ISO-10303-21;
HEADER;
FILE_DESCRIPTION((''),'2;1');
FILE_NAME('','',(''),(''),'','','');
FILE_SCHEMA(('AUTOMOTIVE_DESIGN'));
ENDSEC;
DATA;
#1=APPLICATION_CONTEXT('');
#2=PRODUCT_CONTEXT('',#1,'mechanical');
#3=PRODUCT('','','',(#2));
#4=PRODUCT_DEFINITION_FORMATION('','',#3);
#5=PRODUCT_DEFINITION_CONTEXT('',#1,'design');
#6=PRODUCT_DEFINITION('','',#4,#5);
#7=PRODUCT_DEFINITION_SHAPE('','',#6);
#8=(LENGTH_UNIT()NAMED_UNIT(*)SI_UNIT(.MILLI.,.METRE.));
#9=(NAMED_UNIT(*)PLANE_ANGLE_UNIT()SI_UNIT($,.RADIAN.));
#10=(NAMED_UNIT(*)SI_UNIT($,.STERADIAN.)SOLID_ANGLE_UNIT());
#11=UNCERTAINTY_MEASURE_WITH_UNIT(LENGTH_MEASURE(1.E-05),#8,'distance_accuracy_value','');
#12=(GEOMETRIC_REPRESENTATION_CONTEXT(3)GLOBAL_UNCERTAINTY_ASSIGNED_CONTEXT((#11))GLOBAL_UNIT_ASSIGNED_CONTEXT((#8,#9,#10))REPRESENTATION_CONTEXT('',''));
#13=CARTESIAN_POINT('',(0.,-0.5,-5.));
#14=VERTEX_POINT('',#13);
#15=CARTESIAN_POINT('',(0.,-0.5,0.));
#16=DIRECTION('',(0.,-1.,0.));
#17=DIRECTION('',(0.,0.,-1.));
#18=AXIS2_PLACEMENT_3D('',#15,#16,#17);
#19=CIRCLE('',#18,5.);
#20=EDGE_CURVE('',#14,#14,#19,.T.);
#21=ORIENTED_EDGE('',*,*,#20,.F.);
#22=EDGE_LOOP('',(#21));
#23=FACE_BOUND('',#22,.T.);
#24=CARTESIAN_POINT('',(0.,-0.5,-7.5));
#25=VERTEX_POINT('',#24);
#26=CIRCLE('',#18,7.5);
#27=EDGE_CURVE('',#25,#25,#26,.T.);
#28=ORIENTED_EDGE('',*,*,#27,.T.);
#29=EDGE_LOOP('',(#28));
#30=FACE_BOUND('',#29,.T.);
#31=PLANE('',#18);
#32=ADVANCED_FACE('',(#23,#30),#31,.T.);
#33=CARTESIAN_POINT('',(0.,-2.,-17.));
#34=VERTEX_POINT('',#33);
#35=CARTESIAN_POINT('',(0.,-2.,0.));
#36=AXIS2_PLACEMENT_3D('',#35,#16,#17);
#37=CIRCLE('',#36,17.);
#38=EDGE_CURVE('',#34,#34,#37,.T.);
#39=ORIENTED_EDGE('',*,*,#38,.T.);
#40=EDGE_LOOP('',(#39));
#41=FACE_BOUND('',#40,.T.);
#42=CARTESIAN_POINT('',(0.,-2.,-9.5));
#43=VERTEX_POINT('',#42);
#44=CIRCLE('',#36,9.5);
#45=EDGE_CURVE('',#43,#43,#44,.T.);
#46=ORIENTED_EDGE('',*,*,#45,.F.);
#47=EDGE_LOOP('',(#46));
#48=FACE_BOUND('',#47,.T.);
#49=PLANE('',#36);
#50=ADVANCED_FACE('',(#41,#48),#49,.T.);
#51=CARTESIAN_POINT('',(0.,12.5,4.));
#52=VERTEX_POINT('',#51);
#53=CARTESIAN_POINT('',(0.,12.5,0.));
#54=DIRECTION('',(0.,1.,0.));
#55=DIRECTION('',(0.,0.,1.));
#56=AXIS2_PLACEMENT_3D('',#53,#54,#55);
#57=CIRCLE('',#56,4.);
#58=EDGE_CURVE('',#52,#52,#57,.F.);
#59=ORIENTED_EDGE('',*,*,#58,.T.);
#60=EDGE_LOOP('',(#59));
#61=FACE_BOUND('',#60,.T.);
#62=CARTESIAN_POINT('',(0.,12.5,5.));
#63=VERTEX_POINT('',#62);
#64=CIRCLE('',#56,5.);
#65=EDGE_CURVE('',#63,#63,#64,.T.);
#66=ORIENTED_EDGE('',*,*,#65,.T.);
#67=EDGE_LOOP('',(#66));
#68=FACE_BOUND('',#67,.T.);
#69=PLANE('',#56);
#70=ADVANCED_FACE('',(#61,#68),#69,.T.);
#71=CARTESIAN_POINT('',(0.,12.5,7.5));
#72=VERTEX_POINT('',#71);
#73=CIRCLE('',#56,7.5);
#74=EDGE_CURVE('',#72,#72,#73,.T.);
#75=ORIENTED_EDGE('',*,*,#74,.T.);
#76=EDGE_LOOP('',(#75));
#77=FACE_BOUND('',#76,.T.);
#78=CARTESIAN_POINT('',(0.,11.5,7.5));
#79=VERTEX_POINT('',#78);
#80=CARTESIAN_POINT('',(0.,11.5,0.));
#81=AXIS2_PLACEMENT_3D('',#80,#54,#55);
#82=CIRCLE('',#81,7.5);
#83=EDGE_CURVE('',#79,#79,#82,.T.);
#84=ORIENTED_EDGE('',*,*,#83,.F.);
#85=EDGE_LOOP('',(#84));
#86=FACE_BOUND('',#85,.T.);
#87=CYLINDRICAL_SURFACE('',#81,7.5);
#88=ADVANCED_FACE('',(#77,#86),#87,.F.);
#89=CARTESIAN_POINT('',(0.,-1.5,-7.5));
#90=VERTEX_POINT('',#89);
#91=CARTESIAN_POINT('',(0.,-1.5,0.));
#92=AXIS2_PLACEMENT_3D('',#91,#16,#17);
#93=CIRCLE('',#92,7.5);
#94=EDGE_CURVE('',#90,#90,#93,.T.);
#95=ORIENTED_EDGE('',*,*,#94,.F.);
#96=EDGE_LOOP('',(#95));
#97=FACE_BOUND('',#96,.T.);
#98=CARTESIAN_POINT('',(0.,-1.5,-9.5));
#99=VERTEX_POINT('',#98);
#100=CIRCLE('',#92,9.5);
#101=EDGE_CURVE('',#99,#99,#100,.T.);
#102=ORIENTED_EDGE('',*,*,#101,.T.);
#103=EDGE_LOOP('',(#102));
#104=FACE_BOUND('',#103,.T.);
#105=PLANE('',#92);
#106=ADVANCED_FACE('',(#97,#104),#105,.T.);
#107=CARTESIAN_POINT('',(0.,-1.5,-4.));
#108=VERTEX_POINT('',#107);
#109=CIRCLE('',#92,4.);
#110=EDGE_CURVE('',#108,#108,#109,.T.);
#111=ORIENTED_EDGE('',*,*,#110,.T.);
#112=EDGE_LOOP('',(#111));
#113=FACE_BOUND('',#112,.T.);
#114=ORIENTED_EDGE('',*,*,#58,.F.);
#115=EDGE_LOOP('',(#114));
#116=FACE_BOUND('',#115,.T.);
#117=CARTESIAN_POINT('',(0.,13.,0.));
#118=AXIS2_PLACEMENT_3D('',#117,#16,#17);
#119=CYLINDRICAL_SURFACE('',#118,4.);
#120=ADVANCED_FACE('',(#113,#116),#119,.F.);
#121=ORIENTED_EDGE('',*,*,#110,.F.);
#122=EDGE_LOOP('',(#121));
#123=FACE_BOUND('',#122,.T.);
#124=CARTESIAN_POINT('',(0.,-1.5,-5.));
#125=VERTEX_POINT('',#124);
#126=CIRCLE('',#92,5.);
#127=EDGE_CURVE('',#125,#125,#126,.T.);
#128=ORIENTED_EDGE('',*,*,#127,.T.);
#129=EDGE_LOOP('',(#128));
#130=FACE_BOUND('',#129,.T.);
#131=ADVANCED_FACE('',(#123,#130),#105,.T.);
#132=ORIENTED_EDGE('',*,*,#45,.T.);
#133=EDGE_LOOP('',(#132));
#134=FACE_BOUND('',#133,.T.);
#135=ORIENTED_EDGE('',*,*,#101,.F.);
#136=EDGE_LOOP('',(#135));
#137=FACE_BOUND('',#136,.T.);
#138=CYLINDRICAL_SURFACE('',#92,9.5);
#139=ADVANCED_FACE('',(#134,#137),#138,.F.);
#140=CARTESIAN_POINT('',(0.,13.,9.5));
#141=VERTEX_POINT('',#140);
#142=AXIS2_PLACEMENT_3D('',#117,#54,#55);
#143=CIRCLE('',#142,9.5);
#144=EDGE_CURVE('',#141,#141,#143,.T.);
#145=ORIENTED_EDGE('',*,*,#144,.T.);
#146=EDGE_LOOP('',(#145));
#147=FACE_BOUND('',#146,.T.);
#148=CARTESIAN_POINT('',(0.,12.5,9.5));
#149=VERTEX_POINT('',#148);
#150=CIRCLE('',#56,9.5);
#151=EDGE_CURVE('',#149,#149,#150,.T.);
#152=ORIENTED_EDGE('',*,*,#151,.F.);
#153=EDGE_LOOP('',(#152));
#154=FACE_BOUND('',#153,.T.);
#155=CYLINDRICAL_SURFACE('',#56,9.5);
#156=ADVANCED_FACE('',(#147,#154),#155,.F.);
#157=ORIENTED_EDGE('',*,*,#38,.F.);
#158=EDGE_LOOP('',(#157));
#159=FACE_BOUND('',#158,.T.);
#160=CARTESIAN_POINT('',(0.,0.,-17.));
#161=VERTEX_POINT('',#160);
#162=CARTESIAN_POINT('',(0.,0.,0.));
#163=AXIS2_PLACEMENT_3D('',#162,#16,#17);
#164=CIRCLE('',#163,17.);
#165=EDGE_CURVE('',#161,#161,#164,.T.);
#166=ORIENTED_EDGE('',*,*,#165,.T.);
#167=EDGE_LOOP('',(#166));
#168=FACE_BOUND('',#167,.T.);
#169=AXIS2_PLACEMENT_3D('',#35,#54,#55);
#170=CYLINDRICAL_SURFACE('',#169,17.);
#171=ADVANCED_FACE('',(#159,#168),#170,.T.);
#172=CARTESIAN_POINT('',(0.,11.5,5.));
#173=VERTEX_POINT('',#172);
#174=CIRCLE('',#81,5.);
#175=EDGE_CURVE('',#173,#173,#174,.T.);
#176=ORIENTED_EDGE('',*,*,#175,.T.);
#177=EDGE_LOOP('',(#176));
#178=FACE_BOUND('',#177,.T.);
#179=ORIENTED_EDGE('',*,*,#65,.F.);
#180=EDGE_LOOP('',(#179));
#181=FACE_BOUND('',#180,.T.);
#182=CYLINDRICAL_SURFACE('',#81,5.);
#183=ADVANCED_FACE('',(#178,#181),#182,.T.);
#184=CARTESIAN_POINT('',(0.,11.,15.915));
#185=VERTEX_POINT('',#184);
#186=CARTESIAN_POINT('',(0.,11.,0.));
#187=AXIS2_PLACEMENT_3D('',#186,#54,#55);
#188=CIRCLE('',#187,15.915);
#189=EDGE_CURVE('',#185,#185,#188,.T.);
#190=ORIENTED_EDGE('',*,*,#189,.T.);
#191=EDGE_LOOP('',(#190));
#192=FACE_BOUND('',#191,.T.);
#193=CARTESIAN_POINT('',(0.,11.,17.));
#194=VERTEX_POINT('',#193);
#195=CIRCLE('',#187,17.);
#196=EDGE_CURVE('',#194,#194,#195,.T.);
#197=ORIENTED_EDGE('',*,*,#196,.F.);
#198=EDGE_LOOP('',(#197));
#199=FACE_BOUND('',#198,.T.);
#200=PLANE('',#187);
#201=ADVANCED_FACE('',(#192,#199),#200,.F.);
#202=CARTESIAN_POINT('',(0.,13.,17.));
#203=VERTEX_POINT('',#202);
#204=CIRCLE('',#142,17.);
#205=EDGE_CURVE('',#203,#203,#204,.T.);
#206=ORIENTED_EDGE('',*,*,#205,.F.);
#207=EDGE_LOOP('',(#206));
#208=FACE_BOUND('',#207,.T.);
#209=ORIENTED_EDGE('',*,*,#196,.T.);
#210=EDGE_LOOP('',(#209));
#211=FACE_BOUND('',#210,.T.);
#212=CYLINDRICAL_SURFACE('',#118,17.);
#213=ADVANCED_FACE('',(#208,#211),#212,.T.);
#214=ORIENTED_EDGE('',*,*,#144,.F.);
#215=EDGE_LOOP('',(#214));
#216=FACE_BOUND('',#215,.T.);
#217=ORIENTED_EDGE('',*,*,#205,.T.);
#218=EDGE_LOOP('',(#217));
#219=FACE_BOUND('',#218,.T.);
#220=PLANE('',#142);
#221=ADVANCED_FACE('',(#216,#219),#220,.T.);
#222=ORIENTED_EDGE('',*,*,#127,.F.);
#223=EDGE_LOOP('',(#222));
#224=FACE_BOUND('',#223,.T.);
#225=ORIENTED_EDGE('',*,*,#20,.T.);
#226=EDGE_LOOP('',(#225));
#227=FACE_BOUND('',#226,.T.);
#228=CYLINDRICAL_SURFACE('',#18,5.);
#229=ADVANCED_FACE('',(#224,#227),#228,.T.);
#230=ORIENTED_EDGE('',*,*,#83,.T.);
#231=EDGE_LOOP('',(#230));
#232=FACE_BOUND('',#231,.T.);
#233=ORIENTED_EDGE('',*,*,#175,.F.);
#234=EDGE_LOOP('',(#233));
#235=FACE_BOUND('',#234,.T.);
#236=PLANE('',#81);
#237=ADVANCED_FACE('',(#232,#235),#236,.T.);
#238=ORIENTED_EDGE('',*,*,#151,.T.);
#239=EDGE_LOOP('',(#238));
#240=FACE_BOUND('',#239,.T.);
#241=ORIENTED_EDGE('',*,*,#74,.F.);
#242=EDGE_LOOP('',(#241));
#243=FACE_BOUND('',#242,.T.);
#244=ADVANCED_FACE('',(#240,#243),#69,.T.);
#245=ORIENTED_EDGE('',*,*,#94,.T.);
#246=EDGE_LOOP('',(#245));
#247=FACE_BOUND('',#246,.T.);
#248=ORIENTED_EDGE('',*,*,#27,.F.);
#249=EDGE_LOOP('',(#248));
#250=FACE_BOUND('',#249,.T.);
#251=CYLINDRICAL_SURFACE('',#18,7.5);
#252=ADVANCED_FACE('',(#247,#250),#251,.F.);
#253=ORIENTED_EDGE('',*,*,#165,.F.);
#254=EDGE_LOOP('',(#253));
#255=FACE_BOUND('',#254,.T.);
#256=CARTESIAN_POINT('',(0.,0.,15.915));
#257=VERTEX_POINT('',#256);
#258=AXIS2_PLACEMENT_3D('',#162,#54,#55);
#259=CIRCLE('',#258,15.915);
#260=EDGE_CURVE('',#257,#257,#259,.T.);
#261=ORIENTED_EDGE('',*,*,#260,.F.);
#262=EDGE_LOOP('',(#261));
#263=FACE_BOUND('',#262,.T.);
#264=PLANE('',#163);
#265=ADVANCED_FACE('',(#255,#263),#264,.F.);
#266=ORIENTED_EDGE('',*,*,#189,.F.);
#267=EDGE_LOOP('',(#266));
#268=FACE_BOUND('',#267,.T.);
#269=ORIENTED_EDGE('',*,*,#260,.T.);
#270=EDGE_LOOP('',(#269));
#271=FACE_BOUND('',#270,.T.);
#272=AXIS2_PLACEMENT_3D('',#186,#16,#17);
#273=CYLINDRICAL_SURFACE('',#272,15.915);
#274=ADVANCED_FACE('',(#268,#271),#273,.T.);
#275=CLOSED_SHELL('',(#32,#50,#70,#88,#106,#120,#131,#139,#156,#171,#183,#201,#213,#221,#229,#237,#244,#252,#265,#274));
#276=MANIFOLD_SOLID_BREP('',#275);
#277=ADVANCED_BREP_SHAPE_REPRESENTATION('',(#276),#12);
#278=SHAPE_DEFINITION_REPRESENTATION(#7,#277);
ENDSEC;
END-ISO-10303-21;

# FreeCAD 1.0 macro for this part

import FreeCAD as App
import Part
import Sketcher

V = App.Vector
Q = App.Units.Quantity

doc = App.newDocument("Part")
body = doc.addObject("PartDesign::Body", "Body")

# Sketch on XZ plane
sketch1 = body.newObject("Sketcher::SketchObject", "Sketch")
sketch1.AttachmentSupport = (doc.getObject("XZ_Plane"), [""])
sketch1.MapMode = "FlatFace"
sketch1.addGeometry(Part.Circle(V(0, 0, 0), V(0, 0, 1), 16), False)
sketch1.addConstraint(Sketcher.Constraint("Coincident", 0, 3, -1, 1))
sketch1.addConstraint(Sketcher.Constraint("Diameter", 0, Q("31.83 mm")))
pad1 = body.newObject("PartDesign::Pad", "Pad")
pad1.Profile = sketch1
pad1.Length = 11
pad1.Reversed = True

# Sketch on XZ plane
sketch2 = body.newObject("Sketcher::SketchObject", "Sketch001")
sketch2.AttachmentSupport = (doc.getObject("XZ_Plane"), [""])
sketch2.MapMode = "FlatFace"
sketch2.AttachmentOffset = App.Placement(V(0, 0, -11), App.Rotation())
sketch2.addGeometry(Part.Circle(V(0, 0, 0), V(0, 0, 1), 17), False)
sketch2.addConstraint(Sketcher.Constraint("Coincident", 0, 3, -1, 1))
sketch2.addConstraint(Sketcher.Constraint("Diameter", 0, Q("34 mm")))
pad2 = body.newObject("PartDesign::Pad", "Pad001")
pad2.Profile = sketch2
pad2.Length = 2
pad2.Reversed = True

# Sketch on XZ plane
sketch3 = body.newObject("Sketcher::SketchObject", "Sketch002")
sketch3.AttachmentSupport = (doc.getObject("XZ_Plane"), [""])
sketch3.MapMode = "FlatFace"
sketch3.AttachmentOffset = App.Placement(V(0, 0, 2), App.Rotation())
sketch3.addGeometry(Part.Circle(V(0, 0, 0), V(0, 0, 1), 17), False)
sketch3.addConstraint(Sketcher.Constraint("Coincident", 0, 3, -1, 1))
sketch3.addConstraint(Sketcher.Constraint("Diameter", 0, Q("34 mm")))
pad3 = body.newObject("PartDesign::Pad", "Pad002")
pad3.Profile = sketch3
pad3.Length = 2
pad3.Reversed = True

# Sketch on XZ plane
sketch4 = body.newObject("Sketcher::SketchObject", "Sketch003")
sketch4.AttachmentSupport = (doc.getObject("XZ_Plane"), [""])
sketch4.MapMode = "FlatFace"
sketch4.AttachmentOffset = App.Placement(V(0, 0, 2), App.Rotation())
sketch4.addGeometry(Part.Circle(V(0, 0, 0), V(0, 0, 1), 10), False)
sketch4.addGeometry(Part.Circle(V(0, 0, 0), V(0, 0, 1), 8), False)
sketch4.addConstraint(Sketcher.Constraint("Coincident", 0, 3, -1, 1))
sketch4.addConstraint(Sketcher.Constraint("Coincident", 1, 3, -1, 1))
sketch4.addConstraint(Sketcher.Constraint("Diameter", 0, Q("19 mm")))
sketch4.addConstraint(Sketcher.Constraint("Diameter", 1, Q("15 mm")))
pocket1 = body.newObject("PartDesign::Pocket", "Pocket")
pocket1.Profile = sketch4
pocket1.Length = 0.5

# Sketch on XZ plane
sketch5 = body.newObject("Sketcher::SketchObject", "Sketch004")
sketch5.AttachmentSupport = (doc.getObject("XZ_Plane"), [""])
sketch5.MapMode = "FlatFace"
sketch5.AttachmentOffset = App.Placement(V(0, 0, 2), App.Rotation())
sketch5.addGeometry(Part.Circle(V(0, 0, 0), V(0, 0, 1), 8), False)
sketch5.addGeometry(Part.Circle(V(0, 0, 0), V(0, 0, 1), 5), False)
sketch5.addConstraint(Sketcher.Constraint("Coincident", 0, 3, -1, 1))
sketch5.addConstraint(Sketcher.Constraint("Coincident", 1, 3, -1, 1))
sketch5.addConstraint(Sketcher.Constraint("Diameter", 0, Q("15 mm")))
sketch5.addConstraint(Sketcher.Constraint("Diameter", 1, Q("10 mm")))
pocket2 = body.newObject("PartDesign::Pocket", "Pocket001")
pocket2.Profile = sketch5
pocket2.Length = 1.5

# Sketch on XZ plane
sketch6 = body.newObject("Sketcher::SketchObject", "Sketch005")
sketch6.AttachmentSupport = (doc.getObject("XZ_Plane"), [""])
sketch6.MapMode = "FlatFace"
sketch6.AttachmentOffset = App.Placement(V(0, 0, 2), App.Rotation())
sketch6.addGeometry(Part.Circle(V(0, 0, 0), V(0, 0, 1), 5), False)
sketch6.addGeometry(Part.Circle(V(0, 0, 0), V(0, 0, 1), 4), False)
sketch6.addConstraint(Sketcher.Constraint("Coincident", 0, 3, -1, 1))
sketch6.addConstraint(Sketcher.Constraint("Coincident", 1, 3, -1, 1))
sketch6.addConstraint(Sketcher.Constraint("Diameter", 0, Q("10 mm")))
sketch6.addConstraint(Sketcher.Constraint("Diameter", 1, Q("8 mm")))
pocket3 = body.newObject("PartDesign::Pocket", "Pocket002")
pocket3.Profile = sketch6
pocket3.Length = 0.5

# Sketch on XZ plane
sketch7 = body.newObject("Sketcher::SketchObject", "Sketch006")
sketch7.AttachmentSupport = (doc.getObject("XZ_Plane"), [""])
sketch7.MapMode = "FlatFace"
sketch7.AttachmentOffset = App.Placement(V(0, 0, 2), App.Rotation())
sketch7.addGeometry(Part.Circle(V(0, 0, 0), V(0, 0, 1), 4), False)
sketch7.addConstraint(Sketcher.Constraint("Coincident", 0, 3, -1, 1))
sketch7.addConstraint(Sketcher.Constraint("Diameter", 0, Q("8 mm")))
pocket4 = body.newObject("PartDesign::Pocket", "Pocket003")
pocket4.Profile = sketch7
pocket4.Type = "ThroughAll"

# Sketch on XZ plane
sketch8 = body.newObject("Sketcher::SketchObject", "Sketch007")
sketch8.AttachmentSupport = (doc.getObject("XZ_Plane"), [""])
sketch8.MapMode = "FlatFace"
sketch8.AttachmentOffset = App.Placement(V(0, 0, -12.5), App.Rotation())
sketch8.addGeometry(Part.Circle(V(0, 0, 0), V(0, 0, 1), 10), False)
sketch8.addGeometry(Part.Circle(V(0, 0, 0), V(0, 0, 1), 8), False)
sketch8.addConstraint(Sketcher.Constraint("Coincident", 0, 3, -1, 1))
sketch8.addConstraint(Sketcher.Constraint("Coincident", 1, 3, -1, 1))
sketch8.addConstraint(Sketcher.Constraint("Diameter", 0, Q("19 mm")))
sketch8.addConstraint(Sketcher.Constraint("Diameter", 1, Q("15 mm")))
pocket5 = body.newObject("PartDesign::Pocket", "Pocket004")
pocket5.Profile = sketch8
pocket5.Length = 0.5

# Sketch on XZ plane
sketch9 = body.newObject("Sketcher::SketchObject", "Sketch008")
sketch9.AttachmentSupport = (doc.getObject("XZ_Plane"), [""])
sketch9.MapMode = "FlatFace"
sketch9.AttachmentOffset = App.Placement(V(0, 0, -11.5), App.Rotation())
sketch9.addGeometry(Part.Circle(V(0, 0, 0), V(0, 0, 1), 8), False)
sketch9.addGeometry(Part.Circle(V(0, 0, 0), V(0, 0, 1), 5), False)
sketch9.addConstraint(Sketcher.Constraint("Coincident", 0, 3, -1, 1))
sketch9.addConstraint(Sketcher.Constraint("Coincident", 1, 3, -1, 1))
sketch9.addConstraint(Sketcher.Constraint("Diameter", 0, Q("15 mm")))
sketch9.addConstraint(Sketcher.Constraint("Diameter", 1, Q("10 mm")))
pocket6 = body.newObject("PartDesign::Pocket", "Pocket005")
pocket6.Profile = sketch9
pocket6.Length = 1.5

# Sketch on XZ plane
sketch10 = body.newObject("Sketcher::SketchObject", "Sketch009")
sketch10.AttachmentSupport = (doc.getObject("XZ_Plane"), [""])
sketch10.MapMode = "FlatFace"
sketch10.AttachmentOffset = App.Placement(V(0, 0, -12.5), App.Rotation())
sketch10.addGeometry(Part.Circle(V(0, 0, 0), V(0, 0, 1), 5), False)
sketch10.addGeometry(Part.Circle(V(0, 0, 0), V(0, 0, 1), 4), False)
sketch10.addConstraint(Sketcher.Constraint("Coincident", 0, 3, -1, 1))
sketch10.addConstraint(Sketcher.Constraint("Coincident", 1, 3, -1, 1))
sketch10.addConstraint(Sketcher.Constraint("Diameter", 0, Q("10 mm")))
sketch10.addConstraint(Sketcher.Constraint("Diameter", 1, Q("8 mm")))
pocket7 = body.newObject("PartDesign::Pocket", "Pocket006")
pocket7.Profile = sketch10
pocket7.Length = 0.5

doc.recompute()
